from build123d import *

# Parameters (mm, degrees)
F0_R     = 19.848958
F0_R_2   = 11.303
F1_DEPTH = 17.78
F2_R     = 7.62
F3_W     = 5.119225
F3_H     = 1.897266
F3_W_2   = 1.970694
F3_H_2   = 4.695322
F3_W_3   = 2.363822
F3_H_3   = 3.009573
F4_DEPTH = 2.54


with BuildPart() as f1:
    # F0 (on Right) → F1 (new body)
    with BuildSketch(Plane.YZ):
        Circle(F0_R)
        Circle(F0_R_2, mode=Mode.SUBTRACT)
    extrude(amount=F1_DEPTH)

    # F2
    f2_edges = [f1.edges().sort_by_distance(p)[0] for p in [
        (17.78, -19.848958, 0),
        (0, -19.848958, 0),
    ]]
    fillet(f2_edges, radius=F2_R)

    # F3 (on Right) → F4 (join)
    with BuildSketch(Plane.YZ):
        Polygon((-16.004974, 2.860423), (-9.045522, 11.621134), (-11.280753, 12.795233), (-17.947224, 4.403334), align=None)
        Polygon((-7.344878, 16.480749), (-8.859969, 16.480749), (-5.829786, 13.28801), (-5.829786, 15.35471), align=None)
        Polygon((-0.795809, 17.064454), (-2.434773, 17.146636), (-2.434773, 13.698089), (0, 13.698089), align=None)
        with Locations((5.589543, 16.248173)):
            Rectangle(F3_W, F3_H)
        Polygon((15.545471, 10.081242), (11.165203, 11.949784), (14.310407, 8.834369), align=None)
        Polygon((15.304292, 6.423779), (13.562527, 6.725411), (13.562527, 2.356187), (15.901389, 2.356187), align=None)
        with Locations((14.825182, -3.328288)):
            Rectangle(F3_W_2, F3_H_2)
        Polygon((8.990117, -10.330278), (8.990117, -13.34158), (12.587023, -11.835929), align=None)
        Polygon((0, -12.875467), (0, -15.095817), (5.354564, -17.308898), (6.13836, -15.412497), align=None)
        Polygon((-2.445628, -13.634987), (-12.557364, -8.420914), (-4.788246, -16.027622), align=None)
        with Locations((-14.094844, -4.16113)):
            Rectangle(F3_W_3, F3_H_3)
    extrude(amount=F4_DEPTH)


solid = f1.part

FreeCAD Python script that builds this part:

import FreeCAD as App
import Part
import Sketcher
from FreeCAD import Vector
Q = App.Units.Quantity


def edges_at(feature, points):
    """Names of the edges that pass closest to the given points."""
    edges = feature.Shape.Edges
    near = lambda p: min(range(len(edges)), key=lambda i: edges[i].distToShape(Part.Vertex(*p))[0])
    return sorted({f"Edge{near(p) + 1}" for p in points})

doc = App.newDocument("Part")
body = doc.addObject("PartDesign::Body", "Body")

sketch1 = body.newObject("Sketcher::SketchObject", "Sketch")
sketch1.AttachmentSupport = (doc.getObject("YZ_Plane"), [""])
sketch1.MapMode = "FlatFace"
sketch1.addGeometry(Part.Circle(Vector(0, 0, 0), Vector(0, 0, 1), 19.848958), False)
sketch1.addGeometry(Part.Circle(Vector(0, 0, 0), Vector(0, 0, 1), 11.303), False)
sketch1.addConstraint(Sketcher.Constraint("Coincident", 0, 3, -1, 1))
sketch1.addConstraint(Sketcher.Constraint("Coincident", 1, 3, -1, 1))
sketch1.addConstraint(Sketcher.Constraint("Diameter", 1, Q("0.89 in")))
sketch1.addConstraint(Sketcher.Constraint("Diameter", 0, Q("39.697916 mm")))
pad1 = body.newObject("PartDesign::Pad", "Pad")
pad1.Profile = sketch1
pad1.Length = Q("0.7 in")
doc.recompute()

fillet = body.newObject("PartDesign::Fillet", "Fillet")
fillet.Base = (pad1, edges_at(pad1, [(17.78, -19.849, 0), (0, -19.849, 0)]))
fillet.Radius = Q("0.3 in")

sketch2 = body.newObject("Sketcher::SketchObject", "Sketch001")
sketch2.AttachmentSupport = (doc.getObject("YZ_Plane"), [""])
sketch2.MapMode = "FlatFace"
sketch2.addGeometry(Part.LineSegment(Vector(-16.004974, 2.860423, 0), Vector(-9.045522, 11.621134, 0)), False)
sketch2.addGeometry(Part.LineSegment(Vector(-9.045522, 11.621134, 0), Vector(-11.280753, 12.795233, 0)), False)
sketch2.addGeometry(Part.LineSegment(Vector(-11.280753, 12.795233, 0), Vector(-17.947224, 4.403334, 0)), False)
sketch2.addGeometry(Part.LineSegment(Vector(-17.947224, 4.403334, 0), Vector(-16.004974, 2.860423, 0)), False)
sketch2.addGeometry(Part.LineSegment(Vector(-7.344878, 16.480749, 0), Vector(-8.859969, 16.480749, 0)), False)
sketch2.addGeometry(Part.LineSegment(Vector(-8.859969, 16.480749, 0), Vector(-5.829786, 13.28801, 0)), False)
sketch2.addGeometry(Part.LineSegment(Vector(-5.829786, 13.28801, 0), Vector(-5.829786, 15.35471, 0)), False)
sketch2.addGeometry(Part.LineSegment(Vector(-5.829786, 15.35471, 0), Vector(-7.344878, 16.480749, 0)), False)
sketch2.addGeometry(Part.LineSegment(Vector(-0.795809, 17.064454, 0), Vector(-2.434773, 17.146636, 0)), False)
sketch2.addGeometry(Part.LineSegment(Vector(-2.434773, 17.146636, 0), Vector(-2.434773, 13.698089, 0)), False)
sketch2.addGeometry(Part.LineSegment(Vector(-2.434773, 13.698089, 0), Vector(0, 13.698089, 0)), False)
sketch2.addGeometry(Part.LineSegment(Vector(0, 13.698089, 0), Vector(-0.795809, 17.064454, 0)), False)
sketch2.addGeometry(Part.LineSegment(Vector(3.02993, 17.196806, 0), Vector(3.02993, 15.29954, 0)), False)
sketch2.addGeometry(Part.LineSegment(Vector(3.02993, 15.29954, 0), Vector(8.149156, 15.29954, 0)), False)
sketch2.addGeometry(Part.LineSegment(Vector(8.149156, 15.29954, 0), Vector(8.149156, 17.196806, 0)), False)
sketch2.addGeometry(Part.LineSegment(Vector(8.149156, 17.196806, 0), Vector(3.02993, 17.196806, 0)), False)
sketch2.addGeometry(Part.LineSegment(Vector(15.545471, 10.081242, 0), Vector(11.165203, 11.949784, 0)), False)
sketch2.addGeometry(Part.LineSegment(Vector(11.165203, 11.949784, 0), Vector(14.310407, 8.834369, 0)), False)
sketch2.addGeometry(Part.LineSegment(Vector(14.310407, 8.834369, 0), Vector(15.545471, 10.081242, 0)), False)
sketch2.addGeometry(Part.LineSegment(Vector(15.304292, 6.423779, 0), Vector(13.562527, 6.725411, 0)), False)
sketch2.addGeometry(Part.LineSegment(Vector(13.562527, 6.725411, 0), Vector(13.562527, 2.356187, 0)), False)
sketch2.addGeometry(Part.LineSegment(Vector(13.562527, 2.356187, 0), Vector(15.901389, 2.356187, 0)), False)
sketch2.addGeometry(Part.LineSegment(Vector(15.901389, 2.356187, 0), Vector(15.304292, 6.423779, 0)), False)
sketch2.addGeometry(Part.LineSegment(Vector(13.839835, -0.980627, 0), Vector(13.839835, -5.675949, 0)), False)
sketch2.addGeometry(Part.LineSegment(Vector(13.839835, -5.675949, 0), Vector(15.810529, -5.675949, 0)), False)
sketch2.addGeometry(Part.LineSegment(Vector(15.810529, -5.675949, 0), Vector(15.810529, -0.980627, 0)), False)
sketch2.addGeometry(Part.LineSegment(Vector(15.810529, -0.980627, 0), Vector(13.839835, -0.980627, 0)), False)
sketch2.addGeometry(Part.LineSegment(Vector(8.990117, -10.330278, 0), Vector(8.990117, -13.34158, 0)), False)
sketch2.addGeometry(Part.LineSegment(Vector(8.990117, -13.34158, 0), Vector(12.587023, -11.835929, 0)), False)
sketch2.addGeometry(Part.LineSegment(Vector(12.587023, -11.835929, 0), Vector(8.990117, -10.330278, 0)), False)
sketch2.addGeometry(Part.LineSegment(Vector(0, -12.875467, 0), Vector(0, -15.095817, 0)), False)
sketch2.addGeometry(Part.LineSegment(Vector(0, -15.095817, 0), Vector(5.354564, -17.308898, 0)), False)
sketch2.addGeometry(Part.LineSegment(Vector(5.354564, -17.308898, 0), Vector(6.13836, -15.412497, 0)), False)
sketch2.addGeometry(Part.LineSegment(Vector(6.13836, -15.412497, 0), Vector(0, -12.875467, 0)), False)
sketch2.addGeometry(Part.LineSegment(Vector(-2.445628, -13.634987, 0), Vector(-12.557364, -8.420914, 0)), False)
sketch2.addGeometry(Part.LineSegment(Vector(-12.557364, -8.420914, 0), Vector(-4.788246, -16.027622, 0)), False)
sketch2.addGeometry(Part.LineSegment(Vector(-4.788246, -16.027622, 0), Vector(-2.445628, -13.634987, 0)), False)
sketch2.addGeometry(Part.LineSegment(Vector(-15.276755, -2.656344, 0), Vector(-15.276755, -5.665916, 0)), False)
sketch2.addGeometry(Part.LineSegment(Vector(-15.276755, -5.665916, 0), Vector(-12.912933, -5.665916, 0)), False)
sketch2.addGeometry(Part.LineSegment(Vector(-12.912933, -5.665916, 0), Vector(-12.912933, -2.656344, 0)), False)
sketch2.addGeometry(Part.LineSegment(Vector(-12.912933, -2.656344, 0), Vector(-15.276755, -2.656344, 0)), False)
sketch2.addConstraint(Sketcher.Constraint("Coincident", 0, 2, 1, 1))
sketch2.addConstraint(Sketcher.Constraint("Coincident", 1, 2, 2, 1))
sketch2.addConstraint(Sketcher.Constraint("Coincident", 2, 2, 3, 1))
sketch2.addConstraint(Sketcher.Constraint("Coincident", 3, 2, 0, 1))
sketch2.addConstraint(Sketcher.Constraint("Coincident", 4, 2, 5, 1))
sketch2.addConstraint(Sketcher.Constraint("Coincident", 5, 2, 6, 1))
sketch2.addConstraint(Sketcher.Constraint("Coincident", 6, 2, 7, 1))
sketch2.addConstraint(Sketcher.Constraint("Coincident", 7, 2, 4, 1))
sketch2.addConstraint(Sketcher.Constraint("Coincident", 8, 2, 9, 1))
sketch2.addConstraint(Sketcher.Constraint("Coincident", 9, 2, 10, 1))
sketch2.addConstraint(Sketcher.Constraint("Coincident", 10, 2, 11, 1))
sketch2.addConstraint(Sketcher.Constraint("Coincident", 11, 2, 8, 1))
sketch2.addConstraint(Sketcher.Constraint("Coincident", 12, 2, 13, 1))
sketch2.addConstraint(Sketcher.Constraint("Coincident", 13, 2, 14, 1))
sketch2.addConstraint(Sketcher.Constraint("Coincident", 14, 2, 15, 1))
sketch2.addConstraint(Sketcher.Constraint("Coincident", 15, 2, 12, 1))
sketch2.addConstraint(Sketcher.Constraint("Coincident", 16, 2, 17, 1))
sketch2.addConstraint(Sketcher.Constraint("Coincident", 17, 2, 18, 1))
sketch2.addConstraint(Sketcher.Constraint("Coincident", 18, 2, 16, 1))
sketch2.addConstraint(Sketcher.Constraint("Coincident", 19, 2, 20, 1))
sketch2.addConstraint(Sketcher.Constraint("Coincident", 20, 2, 21, 1))
sketch2.addConstraint(Sketcher.Constraint("Coincident", 21, 2, 22, 1))
sketch2.addConstraint(Sketcher.Constraint("Coincident", 22, 2, 19, 1))
sketch2.addConstraint(Sketcher.Constraint("Coincident", 23, 2, 24, 1))
sketch2.addConstraint(Sketcher.Constraint("Coincident", 24, 2, 25, 1))
sketch2.addConstraint(Sketcher.Constraint("Coincident", 25, 2, 26, 1))
sketch2.addConstraint(Sketcher.Constraint("Coincident", 26, 2, 23, 1))
sketch2.addConstraint(Sketcher.Constraint("Coincident", 27, 2, 28, 1))
sketch2.addConstraint(Sketcher.Constraint("Coincident", 28, 2, 29, 1))
sketch2.addConstraint(Sketcher.Constraint("Coincident", 29, 2, 27, 1))
sketch2.addConstraint(Sketcher.Constraint("Coincident", 30, 2, 31, 1))
sketch2.addConstraint(Sketcher.Constraint("Coincident", 31, 2, 32, 1))
sketch2.addConstraint(Sketcher.Constraint("Coincident", 32, 2, 33, 1))
sketch2.addConstraint(Sketcher.Constraint("Coincident", 33, 2, 30, 1))
sketch2.addConstraint(Sketcher.Constraint("Coincident", 34, 2, 35, 1))
sketch2.addConstraint(Sketcher.Constraint("Coincident", 35, 2, 36, 1))
sketch2.addConstraint(Sketcher.Constraint("Coincident", 36, 2, 34, 1))
sketch2.addConstraint(Sketcher.Constraint("Coincident", 37, 2, 38, 1))
sketch2.addConstraint(Sketcher.Constraint("Coincident", 38, 2, 39, 1))
sketch2.addConstraint(Sketcher.Constraint("Coincident", 39, 2, 40, 1))
sketch2.addConstraint(Sketcher.Constraint("Coincident", 40, 2, 37, 1))
sketch2.addConstraint(Sketcher.Constraint("Horizontal", 4))
sketch2.addConstraint(Sketcher.Constraint("Vertical", 6))
sketch2.addConstraint(Sketcher.Constraint("Vertical", 9))
sketch2.addConstraint(Sketcher.Constraint("Horizontal", 10))
sketch2.addConstraint(Sketcher.Constraint("Vertical", 12))
sketch2.addConstraint(Sketcher.Constraint("Horizontal", 13))
sketch2.addConstraint(Sketcher.Constraint("Vertical", 14))
sketch2.addConstraint(Sketcher.Constraint("Horizontal", 15))
sketch2.addConstraint(Sketcher.Constraint("Vertical", 20))
sketch2.addConstraint(Sketcher.Constraint("Horizontal", 21))
sketch2.addConstraint(Sketcher.Constraint("Vertical", 23))
sketch2.addConstraint(Sketcher.Constraint("Horizontal", 24))
sketch2.addConstraint(Sketcher.Constraint("Vertical", 25))
sketch2.addConstraint(Sketcher.Constraint("Horizontal", 26))
sketch2.addConstraint(Sketcher.Constraint("Vertical", 27))
sketch2.addConstraint(Sketcher.Constraint("Vertical", 30))
sketch2.addConstraint(Sketcher.Constraint("Vertical", 37))
sketch2.addConstraint(Sketcher.Constraint("Horizontal", 38))
sketch2.addConstraint(Sketcher.Constraint("Vertical", 39))
sketch2.addConstraint(Sketcher.Constraint("Horizontal", 40))
sketch2.addConstraint(Sketcher.Constraint("PointOnObject", 10, 2, -2))
sketch2.addConstraint(Sketcher.Constraint("PointOnObject", 30, 2, -2))
sketch2.addConstraint(Sketcher.Constraint("Parallel", 0, 2))
sketch2.addConstraint(Sketcher.Constraint("Perpendicular", 2, 3))
sketch2.addConstraint(Sketcher.Constraint("Perpendicular", 17, 18))
sketch2.addConstraint(Sketcher.Constraint("Perpendicular", 31, 32))
sketch2.addConstraint(Sketcher.Constraint("Perpendicular", 32, 33))
sketch2.addConstraint(Sketcher.Constraint("Perpendicular", 35, 36))
sketch2.addConstraint(Sketcher.Constraint("Equal", 28, 29))
sketch2.addConstraint(Sketcher.Constraint("DistanceY", 6, 1, 6, 2, Q("2.0667 mm")))
sketch2.addConstraint(Sketcher.Constraint("DistanceX", 4, 2, 4, 1, Q("1.515091 mm")))
sketch2.addConstraint(Sketcher.Constraint("DistanceX", 38, 1, 38, 2, Q("2.363822 mm")))
sketch2.addConstraint(Sketcher.Constraint("DistanceY", 30, 2, 30, 1, Q("2.22035 mm")))
sketch2.addConstraint(Sketcher.Constraint("DistanceY", 0, 2, 1, 2, Q("1.174099 mm")))
sketch2.addConstraint(Sketcher.Constraint("DistanceY", 2, 2, 1, 2, Q("8.391899 mm")))
sketch2.addConstraint(Sketcher.Constraint("DistanceX", 2, 2, 0, 2, Q("8.901702 mm")))
sketch2.addConstraint(Sketcher.Constraint("DistanceY", 18, 2, 13, 2, Q("5.218298 mm")))
sketch2.addConstraint(Sketcher.Constraint("DistanceY", 31, 2, 32, 2, Q("1.896401 mm")))
sketch2.addConstraint(Sketcher.Constraint("Distance", 1, Q("2.52483 mm")))
sketch2.addConstraint(Sketcher.Constraint("Distance", 5, Q("4.401771 mm")))
sketch2.addConstraint(Sketcher.Constraint("Distance", 11, Q("3.459151 mm")))
sketch2.addConstraint(Sketcher.Constraint("Distance", 19, Q("1.76769 mm")))
sketch2.addConstraint(Sketcher.Constraint("DistanceX", 10, 1, 10, 2, Q("2.434773 mm")))
sketch2.addConstraint(Sketcher.Constraint("DistanceX", 13, 1, 13, 2, Q("5.119225 mm")))
sketch2.addConstraint(Sketcher.Constraint("DistanceX", 21, 1, 21, 2, Q("2.338862 mm")))
sketch2.addConstraint(Sketcher.Constraint("DistanceX", 24, 1, 24, 2, Q("1.970694 mm")))
sketch2.addConstraint(Sketcher.Constraint("DistanceY", 9, 2, 9, 1, Q("3.448547 mm")))
sketch2.addConstraint(Sketcher.Constraint("DistanceY", 12, 2, 12, 1, Q("1.897266 mm")))
sketch2.addConstraint(Sketcher.Constraint("DistanceY", 20, 2, 20, 1, Q("4.369224 mm")))
sketch2.addConstraint(Sketcher.Constraint("DistanceY", 23, 2, 23, 1, Q("4.695322 mm")))
sketch2.addConstraint(Sketcher.Constraint("DistanceY", 27, 2, 27, 1, Q("3.011302 mm")))
sketch2.addConstraint(Sketcher.Constraint("DistanceY", 37, 2, 37, 1, Q("3.009573 mm")))
sketch2.addConstraint(Sketcher.Constraint("DistanceX", 4, 2, -1, 1, Q("8.859969 mm")))
sketch2.addConstraint(Sketcher.Constraint("DistanceY", -1, 1, 4, 2, Q("16.480749 mm")))
sketch2.addConstraint(Sketcher.Constraint("DistanceY", -1, 1, 5, 2, Q("13.28801 mm")))
sketch2.addConstraint(Sketcher.Constraint("DistanceY", -1, 1, 9, 2, Q("13.698089 mm")))
sketch2.addConstraint(Sketcher.Constraint("DistanceX", 11, 2, -1, 1, Q("0.795809 mm")))
sketch2.addConstraint(Sketcher.Constraint("DistanceX", -1, 1, 12, 2, Q("3.02993 mm")))
sketch2.addConstraint(Sketcher.Constraint("DistanceY", -1, 1, 12, 2, Q("15.29954 mm")))
sketch2.addConstraint(Sketcher.Constraint("DistanceY", -1, 1, 17, 2, Q("8.834369 mm")))
sketch2.addConstraint(Sketcher.Constraint("DistanceX", -1, 1, 18, 2, Q("15.545471 mm")))
sketch2.addConstraint(Sketcher.Constraint("DistanceY", -1, 1, 19, 2, Q("6.725411 mm")))
sketch2.addConstraint(Sketcher.Constraint("DistanceX", -1, 1, 21, 2, Q("15.901389 mm")))
sketch2.addConstraint(Sketcher.Constraint("DistanceY", -1, 1, 22, 2, Q("6.423779 mm")))
sketch2.addConstraint(Sketcher.Constraint("DistanceY", 23, 2, -1, 1, Q("5.675949 mm")))
sketch2.addConstraint(Sketcher.Constraint("DistanceX", -1, 1, 24, 2, Q("15.810529 mm")))
sketch2.addConstraint(Sketcher.Constraint("DistanceY", 27, 2, -1, 1, Q("13.34158 mm")))
sketch2.addConstraint(Sketcher.Constraint("DistanceX", -1, 1, 32, 2, Q("6.13836 mm")))
sketch2.addConstraint(Sketcher.Constraint("DistanceX", 36, 2, -1, 1, Q("2.445628 mm")))
sketch2.addConstraint(Sketcher.Constraint("DistanceX", 0, 2, 8, 2, Q("6.610749 mm")))
sketch2.addConstraint(Sketcher.Constraint("DistanceY", 16, 2, 14, 2, Q("5.247022 mm")))
sketch2.addConstraint(Sketcher.Constraint("DistanceX", 13, 2, 17, 2, Q("6.161251 mm")))
sketch2.addConstraint(Sketcher.Constraint("DistanceX", 27, 2, 23, 2, Q("4.849718 mm")))
sketch2.addConstraint(Sketcher.Constraint("DistanceY", 30, 2, 29, 2, Q("4.765539 mm")))
sketch2.addConstraint(Sketcher.Constraint("DistanceX", 31, 2, 28, 2, Q("7.232459 mm")))
sketch2.addConstraint(Sketcher.Constraint("DistanceX", 3, 2, 34, 2, Q("3.44761 mm")))
sketch2.addConstraint(Sketcher.Constraint("DistanceY", 34, 2, 2, 2, Q("12.824248 mm")))
sketch2.addConstraint(Sketcher.Constraint("DistanceX", 35, 2, 31, 2, Q("10.14281 mm")))
sketch2.addConstraint(Sketcher.Constraint("DistanceY", 35, 2, 34, 2, Q("7.606708 mm")))
sketch2.addConstraint(Sketcher.Constraint("DistanceY", 36, 2, 33, 2, Q("0.75952 mm")))
sketch2.addConstraint(Sketcher.Constraint("DistanceX", 37, 2, 34, 2, Q("2.719391 mm")))
sketch2.addConstraint(Sketcher.Constraint("DistanceY", 37, 2, 3, 2, Q("8.526339 mm")))
pad2 = body.newObject("PartDesign::Pad", "Pad001")
pad2.Profile = sketch2
pad2.Length = Q("0.1 in")

doc.recompute()
